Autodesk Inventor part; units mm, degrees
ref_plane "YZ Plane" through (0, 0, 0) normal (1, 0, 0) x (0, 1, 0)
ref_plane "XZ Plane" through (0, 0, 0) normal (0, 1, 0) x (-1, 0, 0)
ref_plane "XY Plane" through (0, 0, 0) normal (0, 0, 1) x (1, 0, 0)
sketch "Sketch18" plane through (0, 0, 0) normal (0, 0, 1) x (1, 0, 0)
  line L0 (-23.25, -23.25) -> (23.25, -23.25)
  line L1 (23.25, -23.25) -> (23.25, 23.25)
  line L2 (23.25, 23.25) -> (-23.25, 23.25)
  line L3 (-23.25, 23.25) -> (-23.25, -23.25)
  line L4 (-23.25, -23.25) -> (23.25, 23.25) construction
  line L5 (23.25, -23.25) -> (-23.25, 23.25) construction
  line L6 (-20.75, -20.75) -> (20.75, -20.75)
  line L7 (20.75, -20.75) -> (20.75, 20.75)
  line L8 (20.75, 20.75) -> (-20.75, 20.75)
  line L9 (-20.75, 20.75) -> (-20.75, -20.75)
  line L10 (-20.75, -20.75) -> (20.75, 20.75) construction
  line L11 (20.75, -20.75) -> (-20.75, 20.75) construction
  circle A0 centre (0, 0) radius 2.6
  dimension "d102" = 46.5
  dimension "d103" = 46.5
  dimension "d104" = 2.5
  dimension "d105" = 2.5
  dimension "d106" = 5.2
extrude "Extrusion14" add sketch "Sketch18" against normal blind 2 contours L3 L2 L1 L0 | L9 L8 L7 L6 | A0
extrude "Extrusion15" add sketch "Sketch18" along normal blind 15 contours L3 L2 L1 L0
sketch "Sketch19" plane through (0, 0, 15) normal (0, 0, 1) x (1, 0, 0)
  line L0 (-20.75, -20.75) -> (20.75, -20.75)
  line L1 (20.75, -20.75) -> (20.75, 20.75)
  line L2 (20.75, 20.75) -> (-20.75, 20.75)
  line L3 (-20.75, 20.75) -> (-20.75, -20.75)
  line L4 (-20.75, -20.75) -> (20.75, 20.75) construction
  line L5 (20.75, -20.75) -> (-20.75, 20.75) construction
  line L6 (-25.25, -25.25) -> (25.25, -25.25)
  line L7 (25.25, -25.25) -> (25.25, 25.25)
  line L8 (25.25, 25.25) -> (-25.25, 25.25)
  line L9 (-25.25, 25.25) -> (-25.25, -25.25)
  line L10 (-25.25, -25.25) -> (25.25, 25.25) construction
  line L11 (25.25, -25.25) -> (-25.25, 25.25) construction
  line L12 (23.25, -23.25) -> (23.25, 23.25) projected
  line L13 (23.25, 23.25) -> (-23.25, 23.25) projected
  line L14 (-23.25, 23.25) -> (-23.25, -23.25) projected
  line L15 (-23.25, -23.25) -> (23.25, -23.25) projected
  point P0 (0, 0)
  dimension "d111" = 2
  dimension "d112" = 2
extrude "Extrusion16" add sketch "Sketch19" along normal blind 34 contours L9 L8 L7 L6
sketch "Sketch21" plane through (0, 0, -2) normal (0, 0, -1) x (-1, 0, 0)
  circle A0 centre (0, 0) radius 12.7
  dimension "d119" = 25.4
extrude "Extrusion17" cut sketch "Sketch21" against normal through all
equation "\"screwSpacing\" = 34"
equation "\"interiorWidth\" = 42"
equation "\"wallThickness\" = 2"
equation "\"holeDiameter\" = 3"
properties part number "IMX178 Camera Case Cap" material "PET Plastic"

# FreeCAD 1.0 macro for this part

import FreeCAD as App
import Part
import Sketcher

V = App.Vector
Q = App.Units.Quantity

doc = App.newDocument("Part")
body = doc.addObject("PartDesign::Body", "Body")
body.AllowCompound = True

sketch1 = doc.addObject("Sketcher::SketchObject", "Sketch")
body.addObject(sketch1)
sketch1.AttachmentSupport = (doc.XY_Plane, [""])
sketch1.MapMode = "FlatFace"
sketch1.addGeometry([
    Part.LineSegment(V(-23.25, 23.25, 0), V(-23.25, -23.25, 0)),
    Part.LineSegment(V(-23.25, -23.25, 0), V(23.25, -23.25, 0)),
    Part.LineSegment(V(23.25, -23.25, 0), V(23.25, 23.25, 0)),
    Part.LineSegment(V(23.25, 23.25, 0), V(-23.25, 23.25, 0)),
], False)
sketch1.addConstraint([
    Sketcher.Constraint("Coincident", 0, 2, 1, 1),
    Sketcher.Constraint("Coincident", 1, 2, 2, 1),
    Sketcher.Constraint("Coincident", 2, 2, 3, 1),
    Sketcher.Constraint("Coincident", 3, 2, 0, 1),
    Sketcher.Constraint("Vertical", 0),
    Sketcher.Constraint("Horizontal", 1),
    Sketcher.Constraint("Vertical", 2),
    Sketcher.Constraint("Horizontal", 3),
    Sketcher.Constraint("Symmetric", 0, 2, 2, 2, -1, 1),
    Sketcher.Constraint("Equal", 3, 0),
    Sketcher.Constraint("DistanceX", 1, 1, 1, 2, Q("46.5 mm")),
])
pad1 = doc.addObject("PartDesign::Pad", "Pad")
body.addObject(pad1)
pad1.Profile = sketch1
pad1.Length = 2
pad1.Reversed = True

sketch2 = doc.addObject("Sketcher::SketchObject", "Sketch001")
body.addObject(sketch2)
sketch2.AttachmentSupport = (doc.XY_Plane, [""])
sketch2.MapMode = "FlatFace"
sketch2.addGeometry([
    Part.LineSegment(V(-23.25, 23.25, 0), V(-23.25, -23.25, 0)),
    Part.LineSegment(V(-23.25, -23.25, 0), V(23.25, -23.25, 0)),
    Part.LineSegment(V(23.25, -23.25, 0), V(23.25, 23.25, 0)),
    Part.LineSegment(V(23.25, 23.25, 0), V(-23.25, 23.25, 0)),
    Part.LineSegment(V(20.75, -20.75, 0), V(-20.75, -20.75, 0)),
    Part.LineSegment(V(-20.75, -20.75, 0), V(-20.75, 20.75, 0)),
    Part.LineSegment(V(-20.75, 20.75, 0), V(20.75, 20.75, 0)),
    Part.LineSegment(V(20.75, 20.75, 0), V(20.75, -20.75, 0)),
], False)
sketch2.addConstraint([
    Sketcher.Constraint("Coincident", 0, 2, 1, 1),
    Sketcher.Constraint("Coincident", 1, 2, 2, 1),
    Sketcher.Constraint("Coincident", 2, 2, 3, 1),
    Sketcher.Constraint("Coincident", 3, 2, 0, 1),
    Sketcher.Constraint("Coincident", 4, 2, 5, 1),
    Sketcher.Constraint("Coincident", 5, 2, 6, 1),
    Sketcher.Constraint("Coincident", 6, 2, 7, 1),
    Sketcher.Constraint("Coincident", 7, 2, 4, 1),
    Sketcher.Constraint("Vertical", 0),
    Sketcher.Constraint("Horizontal", 1),
    Sketcher.Constraint("Vertical", 2),
    Sketcher.Constraint("Horizontal", 3),
    Sketcher.Constraint("Horizontal", 4),
    Sketcher.Constraint("Vertical", 5),
    Sketcher.Constraint("Horizontal", 6),
    Sketcher.Constraint("Vertical", 7),
    Sketcher.Constraint("Symmetric", 0, 2, 2, 2, -1, 1),
    Sketcher.Constraint("Symmetric", 4, 2, 6, 2, -1, 1),
    Sketcher.Constraint("Equal", 3, 0),
    Sketcher.Constraint("Equal", 6, 5),
    Sketcher.Constraint("DistanceX", 1, 1, 1, 2, Q("46.5 mm")),
    Sketcher.Constraint("DistanceX", 0, 2, 4, 2, Q("2.5 mm")),
])
pad2 = doc.addObject("PartDesign::Pad", "Pad001")
body.addObject(pad2)
pad2.Profile = sketch2
pad2.Length = 15

sketch3 = doc.addObject("Sketcher::SketchObject", "Sketch002")
body.addObject(sketch3)
sketch3.AttachmentSupport = (doc.XY_Plane, [""])
sketch3.MapMode = "FlatFace"
sketch3.AttachmentOffset = App.Placement(V(0, 0, 15), App.Rotation())
sketch3.addGeometry([
    Part.LineSegment(V(-25.25, 25.25, 0), V(-25.25, -25.25, 0)),
    Part.LineSegment(V(-25.25, -25.25, 0), V(25.25, -25.25, 0)),
    Part.LineSegment(V(25.25, -25.25, 0), V(25.25, 25.25, 0)),
    Part.LineSegment(V(25.25, 25.25, 0), V(-25.25, 25.25, 0)),
    Part.LineSegment(V(23.25, 23.25, 0), V(23.25, -23.25, 0)),
    Part.LineSegment(V(23.25, -23.25, 0), V(-23.25, -23.25, 0)),
    Part.LineSegment(V(-23.25, -23.25, 0), V(-23.25, 23.25, 0)),
    Part.LineSegment(V(-23.25, 23.25, 0), V(23.25, 23.25, 0)),
], False)
sketch3.addConstraint([
    Sketcher.Constraint("Coincident", 0, 2, 1, 1),
    Sketcher.Constraint("Coincident", 1, 2, 2, 1),
    Sketcher.Constraint("Coincident", 2, 2, 3, 1),
    Sketcher.Constraint("Coincident", 3, 2, 0, 1),
    Sketcher.Constraint("Coincident", 4, 2, 5, 1),
    Sketcher.Constraint("Coincident", 5, 2, 6, 1),
    Sketcher.Constraint("Coincident", 6, 2, 7, 1),
    Sketcher.Constraint("Coincident", 7, 2, 4, 1),
    Sketcher.Constraint("Vertical", 0),
    Sketcher.Constraint("Horizontal", 1),
    Sketcher.Constraint("Vertical", 2),
    Sketcher.Constraint("Horizontal", 3),
    Sketcher.Constraint("Vertical", 4),
    Sketcher.Constraint("Horizontal", 5),
    Sketcher.Constraint("Vertical", 6),
    Sketcher.Constraint("Horizontal", 7),
    Sketcher.Constraint("Symmetric", 0, 2, 2, 2, -1, 1),
    Sketcher.Constraint("Symmetric", 4, 2, 6, 2, -1, 1),
    Sketcher.Constraint("Equal", 3, 0),
    Sketcher.Constraint("Equal", 7, 4),
    Sketcher.Constraint("DistanceX", 4, 2, 1, 2, Q("2 mm")),
    Sketcher.Constraint("DistanceX", 1, 1, 1, 2, Q("50.5 mm")),
])
pad3 = doc.addObject("PartDesign::Pad", "Pad002")
body.addObject(pad3)
pad3.Profile = sketch3
pad3.Length = 34

sketch4 = doc.addObject("Sketcher::SketchObject", "Sketch003")
body.addObject(sketch4)
sketch4.AttachmentSupport = (doc.XY_Plane, [""])
sketch4.MapMode = "FlatFace"
sketch4.AttachmentOffset = App.Placement(V(0, 0, -2), App.Rotation())
sketch4.addGeometry(Part.Circle(V(0, 0, 0), V(0, 0, 1), 12.7), False)
sketch4.addConstraint([
    Sketcher.Constraint("Coincident", 0, 3, -1, 1),
    Sketcher.Constraint("Diameter", 0, Q("25.4 mm")),
])
pocket1 = doc.addObject("PartDesign::Pocket", "Pocket")
body.addObject(pocket1)
pocket1.Profile = sketch4
pocket1.Type = "ThroughAll"
pocket1.Reversed = True

doc.recompute()
